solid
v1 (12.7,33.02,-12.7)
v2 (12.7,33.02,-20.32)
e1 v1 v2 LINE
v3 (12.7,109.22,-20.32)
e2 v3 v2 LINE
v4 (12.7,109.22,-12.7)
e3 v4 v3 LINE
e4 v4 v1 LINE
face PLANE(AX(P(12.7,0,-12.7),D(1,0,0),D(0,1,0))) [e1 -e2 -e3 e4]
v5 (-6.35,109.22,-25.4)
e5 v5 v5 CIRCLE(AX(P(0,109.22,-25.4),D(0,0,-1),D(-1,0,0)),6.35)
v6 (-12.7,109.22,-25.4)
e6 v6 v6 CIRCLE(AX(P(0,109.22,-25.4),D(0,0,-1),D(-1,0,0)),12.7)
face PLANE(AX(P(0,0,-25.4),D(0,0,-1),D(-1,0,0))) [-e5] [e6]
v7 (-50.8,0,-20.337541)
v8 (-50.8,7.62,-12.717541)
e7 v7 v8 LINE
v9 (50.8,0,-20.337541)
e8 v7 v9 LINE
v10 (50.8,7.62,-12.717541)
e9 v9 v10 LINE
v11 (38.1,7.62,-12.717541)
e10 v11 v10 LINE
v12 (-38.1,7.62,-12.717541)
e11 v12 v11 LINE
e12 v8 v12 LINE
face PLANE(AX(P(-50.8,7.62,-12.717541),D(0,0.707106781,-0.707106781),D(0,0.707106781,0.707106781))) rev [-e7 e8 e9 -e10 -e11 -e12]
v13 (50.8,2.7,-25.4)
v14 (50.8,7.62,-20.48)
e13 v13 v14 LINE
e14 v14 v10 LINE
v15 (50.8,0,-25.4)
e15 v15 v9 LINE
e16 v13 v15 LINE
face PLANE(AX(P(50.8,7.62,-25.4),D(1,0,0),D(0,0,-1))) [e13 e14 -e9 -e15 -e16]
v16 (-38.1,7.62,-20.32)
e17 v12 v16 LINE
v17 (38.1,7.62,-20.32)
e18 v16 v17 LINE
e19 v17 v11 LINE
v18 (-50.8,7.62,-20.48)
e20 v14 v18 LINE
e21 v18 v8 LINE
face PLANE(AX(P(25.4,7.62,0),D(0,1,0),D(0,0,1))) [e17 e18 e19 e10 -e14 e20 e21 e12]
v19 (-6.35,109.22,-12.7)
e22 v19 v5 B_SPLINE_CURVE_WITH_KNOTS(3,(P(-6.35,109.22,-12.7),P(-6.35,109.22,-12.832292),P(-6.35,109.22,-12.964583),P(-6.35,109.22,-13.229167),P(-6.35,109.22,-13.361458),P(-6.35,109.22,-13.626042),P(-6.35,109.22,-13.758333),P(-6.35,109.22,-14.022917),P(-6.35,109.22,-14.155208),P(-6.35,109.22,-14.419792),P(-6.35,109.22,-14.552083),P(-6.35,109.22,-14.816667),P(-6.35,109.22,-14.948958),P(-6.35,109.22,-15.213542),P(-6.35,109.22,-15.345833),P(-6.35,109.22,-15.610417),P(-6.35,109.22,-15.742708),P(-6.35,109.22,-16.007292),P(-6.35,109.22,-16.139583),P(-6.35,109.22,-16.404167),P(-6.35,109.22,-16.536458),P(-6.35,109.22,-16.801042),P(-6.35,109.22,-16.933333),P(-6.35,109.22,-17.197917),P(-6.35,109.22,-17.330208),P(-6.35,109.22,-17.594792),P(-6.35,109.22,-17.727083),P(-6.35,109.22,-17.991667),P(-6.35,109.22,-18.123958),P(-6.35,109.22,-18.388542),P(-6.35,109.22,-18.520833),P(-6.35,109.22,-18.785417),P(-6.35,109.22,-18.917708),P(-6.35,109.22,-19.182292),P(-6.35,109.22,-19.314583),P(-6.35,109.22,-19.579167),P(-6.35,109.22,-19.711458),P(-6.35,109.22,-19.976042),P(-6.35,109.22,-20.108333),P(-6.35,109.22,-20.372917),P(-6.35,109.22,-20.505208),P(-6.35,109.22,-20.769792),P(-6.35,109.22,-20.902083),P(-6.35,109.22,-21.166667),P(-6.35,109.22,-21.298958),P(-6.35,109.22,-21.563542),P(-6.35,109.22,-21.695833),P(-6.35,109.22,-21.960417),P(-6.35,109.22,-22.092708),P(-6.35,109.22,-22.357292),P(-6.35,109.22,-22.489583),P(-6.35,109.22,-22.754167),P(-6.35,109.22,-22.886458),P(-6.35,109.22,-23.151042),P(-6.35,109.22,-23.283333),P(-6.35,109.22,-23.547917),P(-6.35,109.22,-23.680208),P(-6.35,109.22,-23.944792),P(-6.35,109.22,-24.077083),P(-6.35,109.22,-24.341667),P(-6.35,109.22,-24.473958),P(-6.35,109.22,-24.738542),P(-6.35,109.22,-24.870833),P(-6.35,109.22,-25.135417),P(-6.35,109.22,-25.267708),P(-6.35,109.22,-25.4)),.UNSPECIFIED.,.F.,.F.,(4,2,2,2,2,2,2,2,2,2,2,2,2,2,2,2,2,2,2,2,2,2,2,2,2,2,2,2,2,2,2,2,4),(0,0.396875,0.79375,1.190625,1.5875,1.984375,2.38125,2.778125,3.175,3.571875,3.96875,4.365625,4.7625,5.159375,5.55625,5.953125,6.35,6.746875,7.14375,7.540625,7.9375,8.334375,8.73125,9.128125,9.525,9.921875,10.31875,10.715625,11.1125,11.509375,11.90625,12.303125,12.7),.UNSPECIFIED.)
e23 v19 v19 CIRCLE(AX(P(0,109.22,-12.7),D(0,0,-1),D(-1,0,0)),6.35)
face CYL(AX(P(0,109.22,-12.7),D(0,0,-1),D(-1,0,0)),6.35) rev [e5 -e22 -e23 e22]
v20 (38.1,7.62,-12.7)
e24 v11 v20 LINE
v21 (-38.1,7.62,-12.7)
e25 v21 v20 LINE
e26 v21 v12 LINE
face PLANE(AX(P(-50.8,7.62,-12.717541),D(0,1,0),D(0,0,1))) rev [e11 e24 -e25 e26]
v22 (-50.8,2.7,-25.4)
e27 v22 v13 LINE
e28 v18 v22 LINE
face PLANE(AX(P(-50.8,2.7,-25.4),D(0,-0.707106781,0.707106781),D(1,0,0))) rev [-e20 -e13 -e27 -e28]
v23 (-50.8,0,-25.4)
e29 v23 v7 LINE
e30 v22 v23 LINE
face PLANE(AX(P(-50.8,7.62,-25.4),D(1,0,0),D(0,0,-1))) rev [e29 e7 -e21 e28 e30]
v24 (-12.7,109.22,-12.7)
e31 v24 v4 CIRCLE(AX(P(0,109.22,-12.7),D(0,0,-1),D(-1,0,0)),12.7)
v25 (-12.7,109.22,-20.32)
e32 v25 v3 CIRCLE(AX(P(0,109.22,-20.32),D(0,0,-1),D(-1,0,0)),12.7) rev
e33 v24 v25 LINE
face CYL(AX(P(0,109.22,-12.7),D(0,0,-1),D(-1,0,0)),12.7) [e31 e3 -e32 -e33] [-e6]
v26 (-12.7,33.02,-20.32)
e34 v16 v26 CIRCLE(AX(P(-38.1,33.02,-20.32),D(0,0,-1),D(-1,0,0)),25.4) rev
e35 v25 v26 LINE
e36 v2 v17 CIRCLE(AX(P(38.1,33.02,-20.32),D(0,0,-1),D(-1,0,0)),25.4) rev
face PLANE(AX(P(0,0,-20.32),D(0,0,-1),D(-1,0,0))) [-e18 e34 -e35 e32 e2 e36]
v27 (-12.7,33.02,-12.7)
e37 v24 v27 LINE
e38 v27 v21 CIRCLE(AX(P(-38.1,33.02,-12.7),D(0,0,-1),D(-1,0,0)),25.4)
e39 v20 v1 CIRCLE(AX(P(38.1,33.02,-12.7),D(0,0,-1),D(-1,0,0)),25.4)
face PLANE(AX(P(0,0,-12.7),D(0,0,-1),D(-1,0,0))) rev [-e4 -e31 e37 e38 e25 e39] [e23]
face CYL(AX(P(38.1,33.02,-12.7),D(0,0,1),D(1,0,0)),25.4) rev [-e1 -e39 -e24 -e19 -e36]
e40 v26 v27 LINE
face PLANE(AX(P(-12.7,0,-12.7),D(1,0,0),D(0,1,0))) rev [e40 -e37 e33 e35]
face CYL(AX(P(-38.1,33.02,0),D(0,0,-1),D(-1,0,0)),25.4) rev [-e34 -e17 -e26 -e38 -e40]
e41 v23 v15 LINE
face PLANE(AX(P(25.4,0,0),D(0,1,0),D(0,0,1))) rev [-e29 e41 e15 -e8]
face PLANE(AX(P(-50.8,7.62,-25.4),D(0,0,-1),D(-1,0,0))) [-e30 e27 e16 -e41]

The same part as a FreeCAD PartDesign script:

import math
import FreeCAD as App
import Part
import Sketcher
from FreeCAD import Vector
Q = App.Units.Quantity


def edges_at(feature, points):
    """Names of the edges that pass closest to the given points."""
    edges = feature.Shape.Edges
    near = lambda p: min(range(len(edges)), key=lambda i: edges[i].distToShape(Part.Vertex(*p))[0])
    return sorted({f"Edge{near(p) + 1}" for p in points})


def add_polygon(sketch, points):
    """Adds a closed chain of lines whose ends are joined by coincident constraints."""
    first, n = sketch.GeometryCount, len(points)
    for a, b in zip(points, points[1:] + points[:1]):
        sketch.addGeometry(Part.LineSegment(App.Vector(*a, 0), App.Vector(*b, 0)), False)
    for i in range(n):
        sketch.addConstraint(Sketcher.Constraint("Coincident", first + i, 2, first + (i + 1) % n, 1))

doc = App.newDocument("Part")
body = doc.addObject("PartDesign::Body", "Body")

sketch1 = doc.addObject("Sketcher::SketchObject", "Sketch")
body.addObject(sketch1)
sketch1.AttachmentSupport = (doc.XZ_Plane, [""])
sketch1.MapMode = "FlatFace"
sketch1.addGeometry([
    Part.LineSegment(Vector(51, -25, 0), Vector(-51, -25, 0)),
    Part.LineSegment(Vector(-51, -25, 0), Vector(-51, 0, 0)),
    Part.ArcOfCircle(Part.Circle(Vector(-25, 0, 0), Vector(0, 0, 1), 25), math.radians(90), math.radians(180)),
    Part.LineSegment(Vector(-25, 25, 0), Vector(25, 25, 0)),
    Part.ArcOfCircle(Part.Circle(Vector(25, 0, 0), Vector(0, 0, 1), 25), math.radians(0), math.radians(90)),
    Part.LineSegment(Vector(51, 0, 0), Vector(51, -25, 0)),
    Part.Circle(Vector(25, 0, 0), Vector(0, 0, 1), 6),
    Part.Circle(Vector(-25, 0, 0), Vector(0, 0, 1), 6),
], False)
sketch1.addConstraint([
    Sketcher.Constraint("Coincident", 0, 2, 1, 1),
    Sketcher.Constraint("Tangent", 1, 2, 2, 2),
    Sketcher.Constraint("Tangent", 2, 1, 3, 1),
    Sketcher.Constraint("Tangent", 3, 2, 4, 2),
    Sketcher.Constraint("Tangent", 4, 1, 5, 1),
    Sketcher.Constraint("Coincident", 5, 2, 0, 1),
    Sketcher.Constraint("Horizontal", 0),
    Sketcher.Constraint("Vertical", 1),
    Sketcher.Constraint("Horizontal", 3),
    Sketcher.Constraint("Vertical", 5),
    Sketcher.Constraint("Coincident", 6, 3, 4, 3),
    Sketcher.Constraint("Coincident", 7, 3, 2, 3),
    Sketcher.Constraint("Equal", 2, 4),
    Sketcher.Constraint("Equal", 6, 7),
    Sketcher.Constraint("Symmetric", 2, 3, 4, 3, -1, 1),
    Sketcher.Constraint("Radius", 2, Q("1 in")),
    Sketcher.Constraint("Diameter", 6, Q("0.5 in")),
    Sketcher.Constraint("DistanceX", 0, 2, 0, 1, Q("4 in")),
    Sketcher.Constraint("DistanceY", 1, 1, 1, 2, Q("1 in")),
])
pad1 = doc.addObject("PartDesign::Pad", "Pad")
body.addObject(pad1)
pad1.Profile = sketch1
pad1.Length = Q("0.3 in")
pad1.Reversed = True

sketch2 = doc.addObject("Sketcher::SketchObject", "Sketch001")
body.addObject(sketch2)
sketch2.AttachmentSupport = (doc.XY_Plane, [""])
sketch2.MapMode = "FlatFace"
sketch2.AttachmentOffset = App.Placement(Vector(0, 0, -0.8 * 25.4), App.Rotation())
sketch2.addGeometry([
    Part.LineSegment(Vector(-13, 8, 0), Vector(-13, 109, 0)),
    Part.ArcOfCircle(Part.Circle(Vector(0, 109, 0), Vector(0, 0, 1), 13), math.radians(0), math.radians(180)),
    Part.LineSegment(Vector(13, 109, 0), Vector(13, 8, 0)),
    Part.LineSegment(Vector(13, 8, 0), Vector(-13, 8, 0)),
    Part.Circle(Vector(0, 109, 0), Vector(0, 0, 1), 6),
], False)
sketch2.addConstraint([
    Sketcher.Constraint("Tangent", 0, 2, 1, 2),
    Sketcher.Constraint("Tangent", 1, 1, 2, 1),
    Sketcher.Constraint("Coincident", 2, 2, 3, 1),
    Sketcher.Constraint("Coincident", 3, 2, 0, 1),
    Sketcher.Constraint("Vertical", 0),
    Sketcher.Constraint("Vertical", 2),
    Sketcher.Constraint("Horizontal", 3),
    Sketcher.Constraint("Coincident", 4, 3, 1, 3),
    Sketcher.Constraint("PointOnObject", 1, 3, -2),
    Sketcher.Constraint("Diameter", 4, Q("0.5 in")),
    Sketcher.Constraint("Radius", 1, Q("0.5 in")),
    Sketcher.Constraint("DistanceY", 0, 1, 0, 2, Q("4 in")),
    Sketcher.Constraint("DistanceY", -1, 1, 1, 3, Q("4.3 in")),
])
pad2 = doc.addObject("PartDesign::Pad", "Pad001")
body.addObject(pad2)
pad2.Profile = sketch2
pad2.Length = Q("0.3 in")

sketch3 = doc.addObject("Sketcher::SketchObject", "Sketch002")
body.addObject(sketch3)
sketch3.AttachmentSupport = (doc.XY_Plane, [""])
sketch3.MapMode = "FlatFace"
sketch3.AttachmentOffset = App.Placement(Vector(0, 0, -0.8 * 25.4), App.Rotation())
sketch3.addGeometry([
    Part.Circle(Vector(0, 109, 0), Vector(0, 0, 1), 13),
    Part.Circle(Vector(0, 109, 0), Vector(0, 0, 1), 6),
], False)
sketch3.addConstraint([
    Sketcher.Constraint("Coincident", 1, 3, 0, 3),
    Sketcher.Constraint("PointOnObject", 0, 3, -2),
    Sketcher.Constraint("Diameter", 0, Q("1 in")),
    Sketcher.Constraint("Diameter", 1, Q("0.5 in")),
    Sketcher.Constraint("DistanceY", -1, 1, 0, 3, Q("4.3 in")),
])
pad3 = doc.addObject("PartDesign::Pad", "Pad002")
body.addObject(pad3)
pad3.Profile = sketch3
pad3.Length = Q("0.2 in")
pad3.Reversed = True
doc.recompute()

fillet = doc.addObject("PartDesign::Fillet", "Fillet")
body.addObject(fillet)
fillet.Base = (pad3, edges_at(pad3, [(-12.7, 7.62, -16.51), (12.7, 7.62, -16.51)]))
fillet.Radius = Q("1 in")
doc.recompute()

chamfer = doc.addObject("PartDesign::Chamfer", "Chamfer")
body.addObject(chamfer)
chamfer.Base = (fillet, edges_at(fillet, [(0, 7.62, -25.4)]))
chamfer.Size = 4.92

sketch4 = doc.addObject("Sketcher::SketchObject", "Sketch003")
body.addObject(sketch4)
sketch4.AttachmentSupport = (doc.YZ_Plane, [""])
sketch4.MapMode = "FlatFace"
sketch4.AttachmentOffset = App.Placement(Vector(0, 0, 2 * 25.4), App.Rotation())
add_polygon(sketch4, [(0, -20), (8, -13), (8, 27), (0, 27)])
sketch4.addConstraint([
    Sketcher.Constraint("Vertical", 1),
    Sketcher.Constraint("Horizontal", 2),
    Sketcher.Constraint("Vertical", 3),
    Sketcher.Constraint("PointOnObject", 2, 2, -2),
    Sketcher.Constraint("DistanceX", 2, 2, 2, 1, Q("0.3 in")),
    Sketcher.Constraint("Angle", 0, Q("45 deg")),
    Sketcher.Constraint("DistanceY", 1, 1, 1, 2, 39.302075),
    Sketcher.Constraint("DistanceY", 0, 2, -1, 1, 12.717541),
])
pocket1 = doc.addObject("PartDesign::Pocket", "Pocket")
body.addObject(pocket1)
pocket1.Profile = sketch4
pocket1.Type = "ThroughAll"

doc.recompute()
